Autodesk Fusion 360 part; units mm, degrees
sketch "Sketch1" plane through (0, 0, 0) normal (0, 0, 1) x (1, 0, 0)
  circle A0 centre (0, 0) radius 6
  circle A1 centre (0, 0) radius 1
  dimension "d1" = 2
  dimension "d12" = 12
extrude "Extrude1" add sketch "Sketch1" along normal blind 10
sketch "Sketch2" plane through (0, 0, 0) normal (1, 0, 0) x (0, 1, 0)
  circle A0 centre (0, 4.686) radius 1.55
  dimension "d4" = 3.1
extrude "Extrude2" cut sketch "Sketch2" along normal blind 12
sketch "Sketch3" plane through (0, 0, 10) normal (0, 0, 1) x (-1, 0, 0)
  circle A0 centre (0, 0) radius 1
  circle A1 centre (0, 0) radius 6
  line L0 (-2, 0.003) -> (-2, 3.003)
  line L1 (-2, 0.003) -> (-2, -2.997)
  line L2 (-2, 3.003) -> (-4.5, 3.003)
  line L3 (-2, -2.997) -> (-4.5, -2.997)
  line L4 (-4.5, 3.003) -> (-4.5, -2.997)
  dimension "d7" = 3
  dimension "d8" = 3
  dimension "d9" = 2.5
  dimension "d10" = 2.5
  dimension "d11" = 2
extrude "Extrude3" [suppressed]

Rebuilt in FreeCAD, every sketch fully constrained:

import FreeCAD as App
import Part
import Sketcher
from FreeCAD import Vector
Q = App.Units.Quantity

doc = App.newDocument("Part")
params = doc.addObject("Spreadsheet::Sheet", "Params")
for row, (alias, value) in enumerate([
    ("sketch1_diameter", "12 mm"),
    ("sketch1_diameter2", "2 mm"),
    ("pad1_length", "10 mm"),
    ("sketch2_diameter", "3.1 mm"),
    ("pocket1_length", "12 mm"),
], start=1):
    params.set(f"A{row}", alias)
    params.set(f"B{row}", "=" + value)
    params.setAlias(f"B{row}", alias)

body = doc.addObject("PartDesign::Body", "Body")

sketch1 = body.newObject("Sketcher::SketchObject", "Sketch")
sketch1.AttachmentSupport = (doc.getObject("XY_Plane"), [""])
sketch1.MapMode = "FlatFace"
sketch1.addGeometry([
    Part.Circle(Vector(0, 0, 0), Vector(0, 0, 1), 6),
    Part.Circle(Vector(0, 0, 0), Vector(0, 0, 1), 1),
], False)
sketch1.addConstraint([
    Sketcher.Constraint("Coincident", 0, 3, -1, 1),
    Sketcher.Constraint("Coincident", 1, 3, -1, 1),
    Sketcher.Constraint("Diameter", 0, Q("12 mm")),
    Sketcher.Constraint("Diameter", 1, Q("2 mm")),
])
sketch1.setExpression("Constraints[2]", "Params.sketch1_diameter")
sketch1.setExpression("Constraints[3]", "Params.sketch1_diameter2")
pad1 = body.newObject("PartDesign::Pad", "Pad")
pad1.Profile = sketch1
pad1.setExpression("Length", "Params.pad1_length")

sketch2 = body.newObject("Sketcher::SketchObject", "Sketch001")
sketch2.AttachmentSupport = (doc.getObject("YZ_Plane"), [""])
sketch2.MapMode = "FlatFace"
sketch2.addGeometry(Part.Circle(Vector(0, 4.7, 0), Vector(0, 0, 1), 1.6), False)
sketch2.addConstraint([
    Sketcher.Constraint("PointOnObject", 0, 3, -2),
    Sketcher.Constraint("Diameter", 0, Q("3.1 mm")),
    Sketcher.Constraint("DistanceY", -1, 1, 0, 3, Q("4.686 mm")),
])
sketch2.setExpression("Constraints[1]", "Params.sketch2_diameter")
pocket1 = body.newObject("PartDesign::Pocket", "Pocket")
pocket1.Profile = sketch2
pocket1.setExpression("Length", "Params.pocket1_length")
pocket1.Reversed = True

doc.recompute()
